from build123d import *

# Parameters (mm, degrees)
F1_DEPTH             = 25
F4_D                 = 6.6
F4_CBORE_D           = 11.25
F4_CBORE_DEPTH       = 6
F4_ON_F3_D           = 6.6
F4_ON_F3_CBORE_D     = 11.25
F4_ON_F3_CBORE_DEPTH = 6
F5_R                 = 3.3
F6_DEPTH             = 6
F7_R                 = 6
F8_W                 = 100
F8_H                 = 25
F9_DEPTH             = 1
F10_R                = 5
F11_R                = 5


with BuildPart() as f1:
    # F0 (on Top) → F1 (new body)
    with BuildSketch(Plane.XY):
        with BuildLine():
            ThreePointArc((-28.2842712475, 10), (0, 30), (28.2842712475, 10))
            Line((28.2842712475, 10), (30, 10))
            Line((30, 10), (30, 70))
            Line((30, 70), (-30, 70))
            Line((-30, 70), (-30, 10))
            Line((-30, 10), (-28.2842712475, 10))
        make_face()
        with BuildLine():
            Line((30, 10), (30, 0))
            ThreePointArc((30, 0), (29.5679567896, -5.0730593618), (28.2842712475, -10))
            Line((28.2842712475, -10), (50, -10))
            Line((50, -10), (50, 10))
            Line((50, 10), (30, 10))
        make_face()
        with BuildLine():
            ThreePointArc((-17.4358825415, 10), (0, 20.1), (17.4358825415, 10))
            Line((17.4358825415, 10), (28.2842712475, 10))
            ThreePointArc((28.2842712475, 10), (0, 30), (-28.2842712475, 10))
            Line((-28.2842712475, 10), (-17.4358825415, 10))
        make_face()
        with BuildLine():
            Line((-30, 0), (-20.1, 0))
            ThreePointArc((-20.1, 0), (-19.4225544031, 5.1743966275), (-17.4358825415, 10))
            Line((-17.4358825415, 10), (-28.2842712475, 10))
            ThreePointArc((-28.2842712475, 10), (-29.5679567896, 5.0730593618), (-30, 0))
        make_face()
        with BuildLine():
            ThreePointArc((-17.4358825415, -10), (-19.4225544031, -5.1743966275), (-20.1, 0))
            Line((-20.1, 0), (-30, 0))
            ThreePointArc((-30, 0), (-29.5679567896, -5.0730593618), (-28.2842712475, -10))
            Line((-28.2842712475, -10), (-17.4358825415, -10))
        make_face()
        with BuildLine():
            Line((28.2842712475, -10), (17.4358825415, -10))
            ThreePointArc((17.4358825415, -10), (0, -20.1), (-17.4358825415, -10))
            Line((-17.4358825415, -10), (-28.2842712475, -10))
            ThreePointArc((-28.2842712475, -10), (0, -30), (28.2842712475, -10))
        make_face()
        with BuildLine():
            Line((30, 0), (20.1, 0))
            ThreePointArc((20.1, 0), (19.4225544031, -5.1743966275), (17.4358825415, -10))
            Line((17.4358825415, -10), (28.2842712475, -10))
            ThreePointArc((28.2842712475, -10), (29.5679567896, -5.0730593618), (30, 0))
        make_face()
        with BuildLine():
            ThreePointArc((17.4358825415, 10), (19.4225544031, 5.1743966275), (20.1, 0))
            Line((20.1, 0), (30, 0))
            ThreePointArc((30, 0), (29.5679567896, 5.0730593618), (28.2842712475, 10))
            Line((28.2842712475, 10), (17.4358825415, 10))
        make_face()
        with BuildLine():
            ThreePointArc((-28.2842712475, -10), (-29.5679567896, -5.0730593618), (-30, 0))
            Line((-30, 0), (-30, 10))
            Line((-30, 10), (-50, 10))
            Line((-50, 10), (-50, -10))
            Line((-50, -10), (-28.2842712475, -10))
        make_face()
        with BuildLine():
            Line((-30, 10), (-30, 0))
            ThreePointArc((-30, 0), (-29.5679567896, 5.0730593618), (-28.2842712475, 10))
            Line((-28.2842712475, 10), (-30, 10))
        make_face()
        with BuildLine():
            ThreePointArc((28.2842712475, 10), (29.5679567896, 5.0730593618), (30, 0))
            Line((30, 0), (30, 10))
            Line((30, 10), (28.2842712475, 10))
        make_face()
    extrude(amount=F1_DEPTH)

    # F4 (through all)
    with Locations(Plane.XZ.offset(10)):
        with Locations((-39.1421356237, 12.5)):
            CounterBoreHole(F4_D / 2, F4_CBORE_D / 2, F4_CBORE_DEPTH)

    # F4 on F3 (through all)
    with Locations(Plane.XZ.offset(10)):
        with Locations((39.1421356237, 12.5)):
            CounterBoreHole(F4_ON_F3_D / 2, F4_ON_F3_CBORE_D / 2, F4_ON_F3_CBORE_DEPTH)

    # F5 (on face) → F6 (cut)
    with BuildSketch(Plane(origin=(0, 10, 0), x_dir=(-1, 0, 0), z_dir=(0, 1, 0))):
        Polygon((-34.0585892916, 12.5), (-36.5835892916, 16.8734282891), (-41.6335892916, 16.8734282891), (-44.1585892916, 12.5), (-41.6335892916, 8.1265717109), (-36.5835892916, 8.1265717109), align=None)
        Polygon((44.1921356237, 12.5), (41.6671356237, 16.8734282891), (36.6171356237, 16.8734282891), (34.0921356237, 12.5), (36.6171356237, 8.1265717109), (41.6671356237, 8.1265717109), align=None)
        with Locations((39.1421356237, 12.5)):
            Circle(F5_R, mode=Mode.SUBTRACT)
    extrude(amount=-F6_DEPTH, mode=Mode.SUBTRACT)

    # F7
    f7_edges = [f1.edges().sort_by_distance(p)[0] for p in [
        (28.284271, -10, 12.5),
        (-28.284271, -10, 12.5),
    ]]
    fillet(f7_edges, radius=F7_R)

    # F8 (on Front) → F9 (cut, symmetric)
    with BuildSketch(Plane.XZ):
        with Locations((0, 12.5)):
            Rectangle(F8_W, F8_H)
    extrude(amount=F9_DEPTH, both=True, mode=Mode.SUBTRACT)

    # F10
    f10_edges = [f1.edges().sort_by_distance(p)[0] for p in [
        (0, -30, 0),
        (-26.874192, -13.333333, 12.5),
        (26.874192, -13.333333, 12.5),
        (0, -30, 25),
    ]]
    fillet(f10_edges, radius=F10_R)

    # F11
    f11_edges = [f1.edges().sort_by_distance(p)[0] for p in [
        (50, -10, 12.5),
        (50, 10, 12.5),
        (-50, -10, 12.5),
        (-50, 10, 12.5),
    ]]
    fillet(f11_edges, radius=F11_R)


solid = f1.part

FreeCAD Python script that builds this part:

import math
import FreeCAD as App
import Part
import Sketcher

V = App.Vector
Q = App.Units.Quantity


def edges_at(feature, points):
    """Names of the edges that pass closest to the given points."""
    edges = feature.Shape.Edges
    near = lambda p: min(range(len(edges)), key=lambda i: edges[i].distToShape(Part.Vertex(*p))[0])
    return sorted({f"Edge{near(p) + 1}" for p in points})


def add_polygon(sketch, points):
    """Adds a closed chain of lines whose ends are joined by coincident constraints."""
    first, n = sketch.GeometryCount, len(points)
    for a, b in zip(points, points[1:] + points[:1]):
        sketch.addGeometry(Part.LineSegment(App.Vector(*a, 0), App.Vector(*b, 0)), False)
    for i in range(n):
        sketch.addConstraint(Sketcher.Constraint("Coincident", first + i, 2, first + (i + 1) % n, 1))

doc = App.newDocument("Part")
params = doc.addObject("Spreadsheet::Sheet", "Params")
for row, (alias, value) in enumerate([
    ("sketch1_radius", "30 mm"),
    ("sketch1_radius2", "20.1 mm"),
    ("sketch1_width", "20 mm"),
    ("sketch1_width2", "60 mm"),
    ("pad1_length", "25 mm"),
    ("sketch2_diameter", "6.6 mm"),
    ("hole_diameter", "6.6 mm"),
    ("hole_cbore_diameter", "11.25 mm"),
    ("hole_cbore_depth", "6 mm"),
    ("sketch3_diameter", "6.6 mm"),
    ("hole2_diameter", "6.6 mm"),
    ("hole2_cbore_diameter", "11.25 mm"),
    ("hole2_cbore_depth", "6 mm"),
    ("sketch4_diameter", "6.6 mm"),
    ("sketch4_width", "5.05 mm"),
    ("pocket1_length", "6 mm"),
    ("fillet_radius", "6 mm"),
    ("sketch5_width", "100 mm"),
    ("sketch5_height", "25 mm"),
    ("pocket2_length", "2 mm"),
    ("fillet2_radius", "5 mm"),
    ("fillet3_radius", "5 mm"),
], start=1):
    params.set(f"A{row}", alias)
    params.set(f"B{row}", "=" + value)
    params.setAlias(f"B{row}", alias)

body = doc.addObject("PartDesign::Body", "Body")
body.AllowCompound = True

# Sketch on XY plane
sketch1 = body.newObject("Sketcher::SketchObject", "Sketch")
sketch1.AttachmentSupport = (doc.getObject("XY_Plane"), [""])
sketch1.MapMode = "FlatFace"
sketch1.addGeometry(Part.LineSegment(V(50, 10, 0), V(30, 10, 0)), False)
sketch1.addGeometry(Part.LineSegment(V(30, 10, 0), V(30, 70, 0)), False)
sketch1.addGeometry(Part.LineSegment(V(30, 70, 0), V(-30, 70, 0)), False)
sketch1.addGeometry(Part.LineSegment(V(-30, 70, 0), V(-30, 10, 0)), False)
sketch1.addGeometry(Part.LineSegment(V(-30, 10, 0), V(-50, 10, 0)), False)
sketch1.addGeometry(Part.LineSegment(V(-50, 10, 0), V(-50, -10, 0)), False)
sketch1.addGeometry(Part.LineSegment(V(-50, -10, 0), V(-28, -10, 0)), False)
sketch1.addGeometry(Part.ArcOfCircle(Part.Circle(V(0, 0, 0), V(0, 0, 1), 30), math.radians(-161), math.radians(-19)), False)
sketch1.addGeometry(Part.LineSegment(V(28, -10, 0), V(50, -10, 0)), False)
sketch1.addGeometry(Part.LineSegment(V(50, -10, 0), V(50, 10, 0)), False)
sketch1.addGeometry(Part.ArcOfCircle(Part.Circle(V(0, 0, 0), V(0, 0, 1), 20), math.radians(30), math.radians(150)), False)
sketch1.addGeometry(Part.ArcOfCircle(Part.Circle(V(0, 0, 0), V(0, 0, 1), 20), math.radians(0), math.radians(30)), False)
sketch1.addGeometry(Part.ArcOfCircle(Part.Circle(V(0, 0, 0), V(0, 0, 1), 20), math.radians(-30), math.radians(0)), False)
sketch1.addGeometry(Part.ArcOfCircle(Part.Circle(V(0, 0, 0), V(0, 0, 1), 20), math.radians(-150), math.radians(-30)), False)
sketch1.addGeometry(Part.ArcOfCircle(Part.Circle(V(0, 0, 0), V(0, 0, 1), 20), math.radians(180), math.radians(210)), False)
sketch1.addGeometry(Part.ArcOfCircle(Part.Circle(V(0, 0, 0), V(0, 0, 1), 20), math.radians(150), math.radians(180)), False)
sketch1.addConstraint(Sketcher.Constraint("Coincident", 0, 2, 1, 1))
sketch1.addConstraint(Sketcher.Constraint("Coincident", 1, 2, 2, 1))
sketch1.addConstraint(Sketcher.Constraint("Coincident", 2, 2, 3, 1))
sketch1.addConstraint(Sketcher.Constraint("Coincident", 3, 2, 4, 1))
sketch1.addConstraint(Sketcher.Constraint("Coincident", 4, 2, 5, 1))
sketch1.addConstraint(Sketcher.Constraint("Coincident", 5, 2, 6, 1))
sketch1.addConstraint(Sketcher.Constraint("Coincident", 6, 2, 7, 1))
sketch1.addConstraint(Sketcher.Constraint("Coincident", 7, 2, 8, 1))
sketch1.addConstraint(Sketcher.Constraint("Coincident", 8, 2, 9, 1))
sketch1.addConstraint(Sketcher.Constraint("Coincident", 9, 2, 0, 1))
sketch1.addConstraint(Sketcher.Constraint("Tangent", 10, 1, 11, 2))
sketch1.addConstraint(Sketcher.Constraint("Tangent", 11, 1, 12, 2))
sketch1.addConstraint(Sketcher.Constraint("Tangent", 12, 1, 13, 2))
sketch1.addConstraint(Sketcher.Constraint("Tangent", 13, 1, 14, 2))
sketch1.addConstraint(Sketcher.Constraint("Tangent", 14, 1, 15, 2))
sketch1.addConstraint(Sketcher.Constraint("Tangent", 15, 1, 10, 2))
sketch1.addConstraint(Sketcher.Constraint("Horizontal", 0))
sketch1.addConstraint(Sketcher.Constraint("Vertical", 1))
sketch1.addConstraint(Sketcher.Constraint("Horizontal", 2))
sketch1.addConstraint(Sketcher.Constraint("Vertical", 3))
sketch1.addConstraint(Sketcher.Constraint("Horizontal", 4))
sketch1.addConstraint(Sketcher.Constraint("Vertical", 5))
sketch1.addConstraint(Sketcher.Constraint("Horizontal", 6))
sketch1.addConstraint(Sketcher.Constraint("Horizontal", 8))
sketch1.addConstraint(Sketcher.Constraint("Vertical", 9))
sketch1.addConstraint(Sketcher.Constraint("Coincident", 7, 3, -1, 1))
sketch1.addConstraint(Sketcher.Constraint("Coincident", 10, 3, -1, 1))
sketch1.addConstraint(Sketcher.Constraint("Coincident", 12, 3, -1, 1))
sketch1.addConstraint(Sketcher.Constraint("Equal", 12, 13))
sketch1.addConstraint(Sketcher.Constraint("Symmetric", 4, 2, 8, 2, -1, 1))
sketch1.addConstraint(Sketcher.Constraint("Symmetric", 0, 2, 3, 2, -2))
sketch1.addConstraint(Sketcher.Constraint("PointOnObject", 11, 1, -1))
sketch1.addConstraint(Sketcher.Constraint("PointOnObject", 14, 1, -1))
sketch1.addConstraint(Sketcher.Constraint("Horizontal", 6, 2, 7, 2))
sketch1.addConstraint(Sketcher.Constraint("Horizontal", 9, 2, 10, 1))
sketch1.addConstraint(Sketcher.Constraint("Horizontal", 8, 2, 12, 1))
sketch1.addConstraint(Sketcher.Constraint("Horizontal", 12, 1, 13, 1))
sketch1.addConstraint(Sketcher.Constraint("Horizontal", 10, 1, 15, 1))
sketch1.addConstraint(Sketcher.Constraint("Equal", 2, 1))
sketch1.addConstraint(Sketcher.Constraint("Equal", 4, 5))
sketch1.addConstraint(Sketcher.Constraint("Radius", 7, Q("30 mm")))
sketch1.addConstraint(Sketcher.Constraint("Radius", 10, Q("20.1 mm")))
sketch1.addConstraint(Sketcher.Constraint("DistanceX", 0, 2, 0, 1, Q("20 mm")))
sketch1.addConstraint(Sketcher.Constraint("DistanceX", 2, 2, 2, 1, Q("60 mm")))
sketch1.setExpression("Constraints[40]", "Params.sketch1_radius")
sketch1.setExpression("Constraints[41]", "Params.sketch1_radius2")
sketch1.setExpression("Constraints[42]", "Params.sketch1_width")
sketch1.setExpression("Constraints[43]", "Params.sketch1_width2")
pad1 = body.newObject("PartDesign::Pad", "Pad")
pad1.Profile = sketch1
pad1.setExpression("Length", "Params.pad1_length")

# Sketch on XZ plane
sketch2 = body.newObject("Sketcher::SketchObject", "Sketch001")
sketch2.AttachmentSupport = (doc.getObject("XZ_Plane"), [""])
sketch2.MapMode = "FlatFace"
sketch2.AttachmentOffset = App.Placement(V(0, 0, 10), App.Rotation())
sketch2.addGeometry(Part.Circle(V(-39.1, 12.5, 0), V(0, 0, 1), 3.3), False)
sketch2.addConstraint(Sketcher.Constraint("Diameter", 0, Q("6.6 mm")))
sketch2.addConstraint(Sketcher.Constraint("DistanceY", -1, 1, 0, 3, Q("12.5 mm")))
sketch2.addConstraint(Sketcher.Constraint("DistanceX", 0, 3, -1, 1, Q("39.142136 mm")))
sketch2.setExpression("Constraints[0]", "Params.sketch2_diameter")
doc.recompute()
hole = body.newObject("PartDesign::Hole", "Hole")
hole.Profile = sketch2
hole.ThreadType = "None"
hole.setExpression("Diameter", "Params.hole_diameter")
hole.DepthType = "ThroughAll"
hole.HoleCutType = "Counterbore"
hole.setExpression("HoleCutDiameter", "Params.hole_cbore_diameter")
hole.setExpression("HoleCutDepth", "Params.hole_cbore_depth")

# Sketch on XZ plane
sketch3 = body.newObject("Sketcher::SketchObject", "Sketch002")
sketch3.AttachmentSupport = (doc.getObject("XZ_Plane"), [""])
sketch3.MapMode = "FlatFace"
sketch3.AttachmentOffset = App.Placement(V(0, 0, 10), App.Rotation())
sketch3.addGeometry(Part.Circle(V(39.1, 12.5, 0), V(0, 0, 1), 3.3), False)
sketch3.addConstraint(Sketcher.Constraint("Diameter", 0, Q("6.6 mm")))
sketch3.addConstraint(Sketcher.Constraint("DistanceY", -1, 1, 0, 3, Q("12.5 mm")))
sketch3.addConstraint(Sketcher.Constraint("DistanceX", -1, 1, 0, 3, Q("39.142136 mm")))
sketch3.setExpression("Constraints[0]", "Params.sketch3_diameter")
doc.recompute()
hole2 = body.newObject("PartDesign::Hole", "Hole001")
hole2.Profile = sketch3
hole2.ThreadType = "None"
hole2.setExpression("Diameter", "Params.hole2_diameter")
hole2.DepthType = "ThroughAll"
hole2.HoleCutType = "Counterbore"
hole2.setExpression("HoleCutDiameter", "Params.hole2_cbore_diameter")
hole2.setExpression("HoleCutDepth", "Params.hole2_cbore_depth")

# Sketch on XZ plane
sketch4 = body.newObject("Sketcher::SketchObject", "Sketch003")
sketch4.AttachmentSupport = (doc.getObject("XZ_Plane"), [""])
sketch4.MapMode = "FlatFace"
sketch4.AttachmentOffset = App.Placement(V(0, 0, -10), App.Rotation())
add_polygon(sketch4, [(34.1, 12.5), (36.6, 16.9), (41.6, 16.9), (44.2, 12.5), (41.6, 8.1), (36.6, 8.1)])  # lines 0-5
add_polygon(sketch4, [(-44.2, 12.5), (-41.7, 16.9), (-36.6, 16.9), (-34.1, 12.5), (-36.6, 8.1), (-41.7, 8.1)])  # lines 6-11
sketch4.addGeometry(Part.Circle(V(-39.1, 12.5, 0), V(0, 0, 1), 3.3), False)  # 12
sketch4.addConstraint(Sketcher.Constraint("Horizontal", 1))
sketch4.addConstraint(Sketcher.Constraint("Horizontal", 4))
sketch4.addConstraint(Sketcher.Constraint("Horizontal", 7))
sketch4.addConstraint(Sketcher.Constraint("Horizontal", 10))
sketch4.addConstraint(Sketcher.Constraint("Parallel", 0, 3))
sketch4.addConstraint(Sketcher.Constraint("Parallel", 2, 5))
sketch4.addConstraint(Sketcher.Constraint("Parallel", 3, 6))
sketch4.addConstraint(Sketcher.Constraint("Parallel", 5, 8))
sketch4.addConstraint(Sketcher.Constraint("Parallel", 6, 9))
sketch4.addConstraint(Sketcher.Constraint("Parallel", 8, 11))
sketch4.addConstraint(Sketcher.Constraint("Horizontal", 12, 3, 2, 2))
sketch4.addConstraint(Sketcher.Constraint("Horizontal", 2, 2, 5, 2))
sketch4.addConstraint(Sketcher.Constraint("Horizontal", 1, 2, 6, 2))
sketch4.addConstraint(Sketcher.Constraint("Horizontal", 5, 2, 8, 2))
sketch4.addConstraint(Sketcher.Constraint("Horizontal", 4, 2, 9, 2))
sketch4.addConstraint(Sketcher.Constraint("Horizontal", 8, 2, 11, 2))
sketch4.addConstraint(Sketcher.Constraint("Vertical", 1, 2, 3, 2))
sketch4.addConstraint(Sketcher.Constraint("Vertical", 0, 2, 4, 2))
sketch4.addConstraint(Sketcher.Constraint("Equal", 4, 7))
sketch4.addConstraint(Sketcher.Constraint("Diameter", 12, Q("6.6 mm")))
sketch4.addConstraint(Sketcher.Constraint("Angle", 0, Q("60 deg")))
sketch4.addConstraint(Sketcher.Constraint("DistanceX", 1, 1, 1, 2, Q("5.05 mm")))
sketch4.addConstraint(Sketcher.Constraint("DistanceY", -1, 1, 12, 3, Q("12.5 mm")))
sketch4.addConstraint(Sketcher.Constraint("DistanceX", 5, 2, 2, 2, Q("10.1 mm")))
sketch4.addConstraint(Sketcher.Constraint("DistanceX", 12, 3, 8, 2, Q("5.05 mm")))
sketch4.addConstraint(Sketcher.Constraint("DistanceX", -1, 1, 0, 2, Q("36.583589 mm")))
sketch4.addConstraint(Sketcher.Constraint("DistanceX", 12, 3, -1, 1, Q("39.142136 mm")))
sketch4.setExpression("Constraints[31]", "Params.sketch4_diameter")
sketch4.setExpression("Constraints[33]", "Params.sketch4_width")
pocket1 = body.newObject("PartDesign::Pocket", "Pocket")
pocket1.Profile = sketch4
pocket1.setExpression("Length", "Params.pocket1_length")
pocket1.Reversed = True
doc.recompute()

fillet = body.newObject("PartDesign::Fillet", "Fillet")
fillet.Base = (pocket1, edges_at(pocket1, [(28.284, -10, 12.5), (-28.284, -10, 12.5)]))
fillet.setExpression("Radius", "Params.fillet_radius")

# Sketch on XZ plane
sketch5 = body.newObject("Sketcher::SketchObject", "Sketch004")
sketch5.AttachmentSupport = (doc.getObject("XZ_Plane"), [""])
sketch5.MapMode = "FlatFace"
add_polygon(sketch5, [(-50, 25), (-50, 0), (50, 0), (50, 25)])  # lines 0-3
sketch5.addConstraint(Sketcher.Constraint("Vertical", 0))
sketch5.addConstraint(Sketcher.Constraint("Horizontal", 1))
sketch5.addConstraint(Sketcher.Constraint("Vertical", 2))
sketch5.addConstraint(Sketcher.Constraint("Horizontal", 3))
sketch5.addConstraint(Sketcher.Constraint("Symmetric", 0, 2, 1, 2, -1, 1))
sketch5.addConstraint(Sketcher.Constraint("DistanceX", 1, 1, 1, 2, Q("100 mm")))
sketch5.addConstraint(Sketcher.Constraint("DistanceY", 0, 2, 0, 1, Q("25 mm")))
sketch5.setExpression("Constraints[9]", "Params.sketch5_width")
sketch5.setExpression("Constraints[10]", "Params.sketch5_height")
pocket2 = body.newObject("PartDesign::Pocket", "Pocket001")
pocket2.Profile = sketch5
pocket2.setExpression("Length", "Params.pocket2_length")
pocket2.Midplane = True
doc.recompute()

fillet2 = body.newObject("PartDesign::Fillet", "Fillet001")
fillet2.Base = (pocket2, edges_at(pocket2, [
    (0, -30, 0),
    (-26.874, -13.333, 12.5),
    (26.874, -13.333, 12.5),
    (0, -30, 25),
]))
fillet2.setExpression("Radius", "Params.fillet2_radius")
doc.recompute()

fillet3 = body.newObject("PartDesign::Fillet", "Fillet002")
fillet3.Base = (fillet2, edges_at(fillet2, [
    (50, -10, 12.5),
    (50, 10, 12.5),
    (-50, -10, 12.5),
    (-50, 10, 12.5),
]))
fillet3.setExpression("Radius", "Params.fillet3_radius")

doc.recompute()
